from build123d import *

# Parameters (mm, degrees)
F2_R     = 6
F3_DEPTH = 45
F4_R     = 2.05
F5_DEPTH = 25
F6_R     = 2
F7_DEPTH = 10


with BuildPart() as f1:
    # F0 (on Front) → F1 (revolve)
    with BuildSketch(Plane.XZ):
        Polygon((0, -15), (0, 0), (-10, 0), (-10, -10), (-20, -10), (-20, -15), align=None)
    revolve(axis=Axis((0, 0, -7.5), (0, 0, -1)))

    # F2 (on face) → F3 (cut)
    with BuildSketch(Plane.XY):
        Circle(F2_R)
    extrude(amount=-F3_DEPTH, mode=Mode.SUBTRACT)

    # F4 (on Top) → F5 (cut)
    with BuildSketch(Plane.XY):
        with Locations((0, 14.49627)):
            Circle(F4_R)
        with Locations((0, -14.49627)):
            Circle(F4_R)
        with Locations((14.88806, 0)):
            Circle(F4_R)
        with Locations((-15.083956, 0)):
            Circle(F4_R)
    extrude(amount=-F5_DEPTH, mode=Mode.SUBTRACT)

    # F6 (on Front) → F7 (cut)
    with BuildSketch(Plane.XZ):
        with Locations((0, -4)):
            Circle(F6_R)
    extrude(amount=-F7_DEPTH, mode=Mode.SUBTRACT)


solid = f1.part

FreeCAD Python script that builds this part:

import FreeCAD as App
import Part
import Sketcher
Q = App.Units.Quantity


def add_polygon(sketch, points):
    """Adds a closed chain of lines whose ends are joined by coincident constraints."""
    first, n = sketch.GeometryCount, len(points)
    for a, b in zip(points, points[1:] + points[:1]):
        sketch.addGeometry(Part.LineSegment(App.Vector(*a, 0), App.Vector(*b, 0)), False)
    for i in range(n):
        sketch.addConstraint(Sketcher.Constraint("Coincident", first + i, 2, first + (i + 1) % n, 1))

doc = App.newDocument("Part")
body = doc.addObject("PartDesign::Body", "Body")

# Sketch on XZ plane
sketch1 = body.newObject("Sketcher::SketchObject", "Sketch")
sketch1.AttachmentSupport = (doc.getObject("XZ_Plane"), [""])
sketch1.MapMode = "FlatFace"
add_polygon(sketch1, [(0, -15), (0, 0), (-10, 0), (-10, -10), (-20, -10), (-20, -15)])  # lines 0-5
sketch1.addConstraint([
    Sketcher.Constraint("Vertical", 0),
    Sketcher.Constraint("Horizontal", 1),
    Sketcher.Constraint("Vertical", 2),
    Sketcher.Constraint("Horizontal", 3),
    Sketcher.Constraint("Vertical", 4),
    Sketcher.Constraint("Horizontal", 5),
    Sketcher.Constraint("Coincident", 0, 2, -1, 1),
    Sketcher.Constraint("Equal", 1, 3),
    Sketcher.Constraint("Equal", 3, 2),
    Sketcher.Constraint("DistanceX", 1, 2, 1, 1, Q("10 mm")),
    Sketcher.Constraint("DistanceY", 0, 1, 0, 2, Q("15 mm")),
])
revolution = body.newObject("PartDesign::Revolution", "Revolution")
revolution.Profile = sketch1
revolution.ReferenceAxis = (sketch1, ["V_Axis"])
revolution.Angle = 360

# Sketch on XY plane
sketch2 = body.newObject("Sketcher::SketchObject", "Sketch001")
sketch2.AttachmentSupport = (doc.getObject("XY_Plane"), [""])
sketch2.MapMode = "FlatFace"
sketch2.addGeometry(Part.Circle(App.Vector(0, 0, 0), App.Vector(0, 0, 1), 6), False)
sketch2.addConstraint([
    Sketcher.Constraint("Coincident", 0, 3, -1, 1),
    Sketcher.Constraint("Diameter", 0, Q("12 mm")),
])
pocket1 = body.newObject("PartDesign::Pocket", "Pocket")
pocket1.Profile = sketch2
pocket1.Length = 45

# Sketch on XY plane
sketch3 = body.newObject("Sketcher::SketchObject", "Sketch002")
sketch3.AttachmentSupport = (doc.getObject("XY_Plane"), [""])
sketch3.MapMode = "FlatFace"
sketch3.addGeometry([
    Part.Circle(App.Vector(0, 14.5, 0), App.Vector(0, 0, 1), 2),
    Part.Circle(App.Vector(0, -14.5, 0), App.Vector(0, 0, 1), 2),
    Part.Circle(App.Vector(14.9, 0, 0), App.Vector(0, 0, 1), 2),
    Part.Circle(App.Vector(-15.1, 0, 0), App.Vector(0, 0, 1), 2),
], False)
sketch3.addConstraint([
    Sketcher.Constraint("Equal", 0, 1),
    Sketcher.Constraint("Equal", 1, 2),
    Sketcher.Constraint("Equal", 2, 3),
    Sketcher.Constraint("Symmetric", 0, 3, 1, 3, -1, 1),
    Sketcher.Constraint("PointOnObject", 0, 3, -2),
    Sketcher.Constraint("PointOnObject", 2, 3, -1),
    Sketcher.Constraint("PointOnObject", 3, 3, -1),
    Sketcher.Constraint("Diameter", 0, Q("4.1 mm")),
    Sketcher.Constraint("DistanceY", -1, 1, 0, 3, Q("14.49627 mm")),
    Sketcher.Constraint("DistanceX", -1, 1, 2, 3, Q("14.88806 mm")),
    Sketcher.Constraint("DistanceX", 3, 3, -1, 1, Q("15.083956 mm")),
])
pocket2 = body.newObject("PartDesign::Pocket", "Pocket001")
pocket2.Profile = sketch3
pocket2.Length = 25

# Sketch on XZ plane
sketch4 = body.newObject("Sketcher::SketchObject", "Sketch003")
sketch4.AttachmentSupport = (doc.getObject("XZ_Plane"), [""])
sketch4.MapMode = "FlatFace"
sketch4.addGeometry(Part.Circle(App.Vector(0, -4, 0), App.Vector(0, 0, 1), 2), False)
sketch4.addConstraint([
    Sketcher.Constraint("PointOnObject", 0, 3, -2),
    Sketcher.Constraint("Diameter", 0, Q("4 mm")),
    Sketcher.Constraint("DistanceY", 0, 3, -1, 1, Q("4 mm")),
])
pocket3 = body.newObject("PartDesign::Pocket", "Pocket002")
pocket3.Profile = sketch4
pocket3.Length = 10

doc.recompute()
